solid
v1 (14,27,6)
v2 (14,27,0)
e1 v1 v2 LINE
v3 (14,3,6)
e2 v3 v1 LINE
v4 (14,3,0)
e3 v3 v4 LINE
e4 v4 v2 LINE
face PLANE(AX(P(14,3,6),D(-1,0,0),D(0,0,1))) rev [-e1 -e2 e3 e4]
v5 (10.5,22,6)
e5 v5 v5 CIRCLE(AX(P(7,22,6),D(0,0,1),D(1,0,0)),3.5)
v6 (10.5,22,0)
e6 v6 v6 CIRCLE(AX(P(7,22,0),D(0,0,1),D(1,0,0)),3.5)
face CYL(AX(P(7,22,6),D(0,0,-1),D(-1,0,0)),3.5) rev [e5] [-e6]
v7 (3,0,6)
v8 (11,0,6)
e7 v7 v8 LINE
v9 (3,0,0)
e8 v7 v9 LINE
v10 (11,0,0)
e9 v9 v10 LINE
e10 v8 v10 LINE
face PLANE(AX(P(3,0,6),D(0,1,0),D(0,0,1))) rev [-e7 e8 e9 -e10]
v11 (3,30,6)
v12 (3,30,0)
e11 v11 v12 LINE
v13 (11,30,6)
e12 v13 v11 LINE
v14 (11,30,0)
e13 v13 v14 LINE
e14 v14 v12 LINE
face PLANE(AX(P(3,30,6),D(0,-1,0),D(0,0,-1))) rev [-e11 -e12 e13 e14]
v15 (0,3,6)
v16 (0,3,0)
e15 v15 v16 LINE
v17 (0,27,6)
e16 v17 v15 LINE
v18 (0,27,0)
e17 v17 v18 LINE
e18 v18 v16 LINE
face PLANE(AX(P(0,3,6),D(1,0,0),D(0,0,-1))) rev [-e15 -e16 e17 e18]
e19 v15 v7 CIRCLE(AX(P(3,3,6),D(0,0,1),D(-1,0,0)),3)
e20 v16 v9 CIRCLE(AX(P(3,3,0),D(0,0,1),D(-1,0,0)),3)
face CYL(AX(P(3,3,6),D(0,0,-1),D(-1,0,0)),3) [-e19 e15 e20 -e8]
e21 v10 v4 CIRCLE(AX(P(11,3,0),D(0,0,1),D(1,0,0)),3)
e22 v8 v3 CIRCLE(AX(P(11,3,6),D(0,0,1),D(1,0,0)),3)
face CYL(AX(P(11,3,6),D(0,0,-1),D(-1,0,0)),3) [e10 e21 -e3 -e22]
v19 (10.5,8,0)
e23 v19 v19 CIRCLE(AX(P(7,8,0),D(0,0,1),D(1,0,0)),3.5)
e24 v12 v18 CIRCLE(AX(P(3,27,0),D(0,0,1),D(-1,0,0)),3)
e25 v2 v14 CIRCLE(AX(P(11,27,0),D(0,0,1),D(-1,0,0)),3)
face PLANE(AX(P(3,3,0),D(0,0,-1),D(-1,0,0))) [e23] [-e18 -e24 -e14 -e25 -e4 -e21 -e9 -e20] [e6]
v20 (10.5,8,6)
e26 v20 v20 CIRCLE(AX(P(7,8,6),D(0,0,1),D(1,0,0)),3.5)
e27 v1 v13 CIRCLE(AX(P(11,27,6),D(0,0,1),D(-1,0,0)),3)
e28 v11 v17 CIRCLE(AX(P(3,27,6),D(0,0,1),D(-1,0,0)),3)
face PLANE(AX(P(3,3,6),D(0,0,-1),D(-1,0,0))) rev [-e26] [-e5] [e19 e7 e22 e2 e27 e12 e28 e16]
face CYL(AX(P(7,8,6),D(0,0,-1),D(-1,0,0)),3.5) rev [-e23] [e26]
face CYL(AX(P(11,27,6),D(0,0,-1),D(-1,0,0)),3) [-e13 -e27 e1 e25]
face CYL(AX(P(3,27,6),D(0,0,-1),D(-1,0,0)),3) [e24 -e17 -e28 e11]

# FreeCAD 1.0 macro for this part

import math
import FreeCAD as App
import Part
import Sketcher
Q = App.Units.Quantity

doc = App.newDocument("Part")
body = doc.addObject("PartDesign::Body", "Body")

sketch1 = body.newObject("Sketcher::SketchObject", "Sketch")
sketch1.AttachmentSupport = (doc.getObject("XY_Plane"), [""])
sketch1.MapMode = "FlatFace"
sketch1.addGeometry([
    Part.LineSegment(App.Vector(3, 0, 0), App.Vector(11, 0, 0)),
    Part.ArcOfCircle(Part.Circle(App.Vector(11, 3, 0), App.Vector(0, 0, 1), 3), math.radians(-90), math.radians(0)),
    Part.LineSegment(App.Vector(14, 3, 0), App.Vector(14, 27, 0)),
    Part.ArcOfCircle(Part.Circle(App.Vector(11, 27, 0), App.Vector(0, 0, 1), 3), math.radians(0), math.radians(90)),
    Part.LineSegment(App.Vector(11, 30, 0), App.Vector(3, 30, 0)),
    Part.ArcOfCircle(Part.Circle(App.Vector(3, 27, 0), App.Vector(0, 0, 1), 3), math.radians(90), math.radians(180)),
    Part.LineSegment(App.Vector(0, 27, 0), App.Vector(0, 3, 0)),
    Part.ArcOfCircle(Part.Circle(App.Vector(3, 3, 0), App.Vector(0, 0, 1), 3), math.radians(180), math.radians(270)),
    Part.Circle(App.Vector(7, 8, 0), App.Vector(0, 0, 1), 3.5),
    Part.Circle(App.Vector(7, 22, 0), App.Vector(0, 0, 1), 3.5),
], False)
sketch1.addConstraint([
    Sketcher.Constraint("Tangent", 0, 2, 1, 1),
    Sketcher.Constraint("Tangent", 1, 2, 2, 1),
    Sketcher.Constraint("Tangent", 2, 2, 3, 1),
    Sketcher.Constraint("Tangent", 3, 2, 4, 1),
    Sketcher.Constraint("Tangent", 4, 2, 5, 1),
    Sketcher.Constraint("Tangent", 5, 2, 6, 1),
    Sketcher.Constraint("Tangent", 6, 2, 7, 1),
    Sketcher.Constraint("Tangent", 7, 2, 0, 1),
    Sketcher.Constraint("Horizontal", 0),
    Sketcher.Constraint("Vertical", 2),
    Sketcher.Constraint("Horizontal", 4),
    Sketcher.Constraint("Vertical", 6),
    Sketcher.Constraint("Equal", 1, 3),
    Sketcher.Constraint("Equal", 3, 5),
    Sketcher.Constraint("Equal", 5, 7),
    Sketcher.Constraint("Equal", 8, 9),
    Sketcher.Constraint("PointOnObject", 0, 2, -1),
    Sketcher.Constraint("PointOnObject", 5, 2, -2),
    Sketcher.Constraint("Vertical", 8, 3, 9, 3),
    Sketcher.Constraint("Diameter", 8, Q("7 mm")),
    Sketcher.Constraint("Radius", 1, Q("3 mm")),
    Sketcher.Constraint("DistanceX", 0, 1, 0, 2, Q("8 mm")),
    Sketcher.Constraint("DistanceY", 2, 1, 2, 2, Q("24 mm")),
    Sketcher.Constraint("DistanceX", -1, 1, 8, 3, Q("7 mm")),
    Sketcher.Constraint("DistanceY", -1, 1, 8, 3, Q("8 mm")),
    Sketcher.Constraint("DistanceY", -1, 1, 9, 3, Q("22 mm")),
])
pad1 = body.newObject("PartDesign::Pad", "Pad")
pad1.Profile = sketch1
pad1.Length = 6

doc.recompute()
